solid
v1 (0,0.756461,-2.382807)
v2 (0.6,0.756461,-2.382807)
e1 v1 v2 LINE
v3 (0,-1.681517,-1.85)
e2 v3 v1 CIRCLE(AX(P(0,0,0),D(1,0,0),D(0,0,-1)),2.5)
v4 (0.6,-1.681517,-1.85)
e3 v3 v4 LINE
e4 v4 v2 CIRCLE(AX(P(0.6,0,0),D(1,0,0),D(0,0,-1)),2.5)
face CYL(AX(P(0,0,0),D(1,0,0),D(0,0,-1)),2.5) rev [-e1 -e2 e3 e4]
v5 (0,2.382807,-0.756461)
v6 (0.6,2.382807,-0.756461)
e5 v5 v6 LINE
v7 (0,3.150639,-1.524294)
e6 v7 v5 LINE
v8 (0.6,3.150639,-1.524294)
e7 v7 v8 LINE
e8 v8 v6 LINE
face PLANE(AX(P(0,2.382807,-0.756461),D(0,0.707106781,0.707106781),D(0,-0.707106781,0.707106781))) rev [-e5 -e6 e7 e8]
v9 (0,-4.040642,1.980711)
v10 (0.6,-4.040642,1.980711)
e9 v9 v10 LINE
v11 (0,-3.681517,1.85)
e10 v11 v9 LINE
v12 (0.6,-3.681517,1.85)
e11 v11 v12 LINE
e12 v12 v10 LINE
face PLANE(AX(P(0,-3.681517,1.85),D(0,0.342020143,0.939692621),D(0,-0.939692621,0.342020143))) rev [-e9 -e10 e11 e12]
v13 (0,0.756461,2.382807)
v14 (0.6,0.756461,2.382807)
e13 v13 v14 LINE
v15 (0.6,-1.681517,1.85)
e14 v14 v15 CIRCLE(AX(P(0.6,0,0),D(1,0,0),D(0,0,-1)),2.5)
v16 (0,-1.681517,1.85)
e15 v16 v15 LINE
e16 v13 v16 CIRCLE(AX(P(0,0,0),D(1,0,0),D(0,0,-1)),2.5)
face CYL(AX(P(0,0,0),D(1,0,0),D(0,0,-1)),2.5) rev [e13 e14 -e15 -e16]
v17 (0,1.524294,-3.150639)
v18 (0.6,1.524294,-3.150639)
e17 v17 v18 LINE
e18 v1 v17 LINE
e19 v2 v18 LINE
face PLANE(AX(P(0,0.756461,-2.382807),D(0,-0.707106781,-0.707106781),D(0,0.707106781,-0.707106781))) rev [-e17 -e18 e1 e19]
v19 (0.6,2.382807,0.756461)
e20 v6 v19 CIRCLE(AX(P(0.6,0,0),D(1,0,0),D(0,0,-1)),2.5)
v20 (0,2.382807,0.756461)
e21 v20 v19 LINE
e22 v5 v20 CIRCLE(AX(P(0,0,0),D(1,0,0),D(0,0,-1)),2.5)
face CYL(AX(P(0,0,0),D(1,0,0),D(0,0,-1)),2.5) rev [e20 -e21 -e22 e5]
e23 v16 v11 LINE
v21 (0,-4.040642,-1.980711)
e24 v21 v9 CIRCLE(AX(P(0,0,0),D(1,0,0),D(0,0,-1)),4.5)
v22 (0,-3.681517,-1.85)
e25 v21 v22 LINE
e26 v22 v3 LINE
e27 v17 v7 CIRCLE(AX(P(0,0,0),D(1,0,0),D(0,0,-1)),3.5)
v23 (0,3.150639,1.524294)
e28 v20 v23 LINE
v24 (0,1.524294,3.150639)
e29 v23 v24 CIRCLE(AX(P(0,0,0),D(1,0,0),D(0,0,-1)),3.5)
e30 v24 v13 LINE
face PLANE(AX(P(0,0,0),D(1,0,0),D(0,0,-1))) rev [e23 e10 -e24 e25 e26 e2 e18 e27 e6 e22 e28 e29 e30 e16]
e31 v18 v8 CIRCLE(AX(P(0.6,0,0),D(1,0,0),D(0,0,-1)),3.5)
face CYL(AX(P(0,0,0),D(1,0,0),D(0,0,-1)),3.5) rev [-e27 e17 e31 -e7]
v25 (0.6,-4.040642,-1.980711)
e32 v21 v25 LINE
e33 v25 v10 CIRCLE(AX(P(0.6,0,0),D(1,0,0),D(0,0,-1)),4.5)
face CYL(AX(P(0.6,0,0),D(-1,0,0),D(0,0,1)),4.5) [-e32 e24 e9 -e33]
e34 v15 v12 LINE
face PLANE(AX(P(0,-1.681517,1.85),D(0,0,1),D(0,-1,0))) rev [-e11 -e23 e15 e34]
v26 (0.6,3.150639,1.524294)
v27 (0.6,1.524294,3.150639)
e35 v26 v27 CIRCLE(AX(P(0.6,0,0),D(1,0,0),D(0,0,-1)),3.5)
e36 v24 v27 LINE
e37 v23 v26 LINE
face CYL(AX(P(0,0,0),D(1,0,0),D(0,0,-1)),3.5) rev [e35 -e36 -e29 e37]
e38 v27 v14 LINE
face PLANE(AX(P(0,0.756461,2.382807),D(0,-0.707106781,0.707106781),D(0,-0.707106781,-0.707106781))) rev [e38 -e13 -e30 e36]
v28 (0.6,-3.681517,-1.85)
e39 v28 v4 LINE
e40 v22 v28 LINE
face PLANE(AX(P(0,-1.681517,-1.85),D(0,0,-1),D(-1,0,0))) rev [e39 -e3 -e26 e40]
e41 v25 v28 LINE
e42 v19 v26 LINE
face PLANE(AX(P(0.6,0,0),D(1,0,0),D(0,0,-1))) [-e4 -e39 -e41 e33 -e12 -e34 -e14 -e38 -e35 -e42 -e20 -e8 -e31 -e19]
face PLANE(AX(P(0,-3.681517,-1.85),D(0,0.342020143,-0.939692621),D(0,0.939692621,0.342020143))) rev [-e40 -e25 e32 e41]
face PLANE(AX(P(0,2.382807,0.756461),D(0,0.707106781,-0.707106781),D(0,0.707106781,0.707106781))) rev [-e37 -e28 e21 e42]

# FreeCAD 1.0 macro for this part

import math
import FreeCAD as App
import Part
import Sketcher
from FreeCAD import Vector
Q = App.Units.Quantity

doc = App.newDocument("Part")
params = doc.addObject("Spreadsheet::Sheet", "Params")
for row, (alias, value) in enumerate([
    ("sketch1_diameter", "9 mm"),
    ("pad1_length", "0.6 mm"),
    ("sketch2_radius", "2.5 mm"),
    ("sketch2_radius2", "3.5 mm"),
    ("sketch2_radius3", "4.5 mm"),
    ("sketch2_width", "2 mm"),
], start=1):
    params.set(f"A{row}", alias)
    params.set(f"B{row}", "=" + value)
    params.setAlias(f"B{row}", alias)

body = doc.addObject("PartDesign::Body", "Body")

sketch1 = body.newObject("Sketcher::SketchObject", "Sketch")
sketch1.AttachmentSupport = (doc.getObject("YZ_Plane"), [""])
sketch1.MapMode = "FlatFace"
sketch1.addGeometry(Part.Circle(Vector(0, 0, 0), Vector(0, 0, 1), 4.5), False)
sketch1.addConstraint([
    Sketcher.Constraint("Coincident", 0, 3, -1, 1),
    Sketcher.Constraint("Diameter", 0, Q("9 mm")),
])
sketch1.setExpression("Constraints[1]", "Params.sketch1_diameter")
pad1 = body.newObject("PartDesign::Pad", "Pad")
pad1.Profile = sketch1
pad1.setExpression("Length", "Params.pad1_length")

sketch2 = body.newObject("Sketcher::SketchObject", "Sketch001")
sketch2.AttachmentSupport = (doc.getObject("YZ_Plane"), [""])
sketch2.MapMode = "FlatFace"
sketch2.AttachmentOffset = App.Placement(Vector(0, 0, 0.6), App.Rotation())
sketch2.addGeometry([
    Part.LineSegment(Vector(3.150639, -1.524294, 0), Vector(2.382807, -0.756461, 0)),
    Part.ArcOfCircle(Part.Circle(Vector(0, 0, 0), Vector(0, 0, 1), 2.5), math.radians(-17.612892), math.radians(17.612892)),
    Part.LineSegment(Vector(2.382807, 0.756461, 0), Vector(3.150639, 1.524294, 0)),
    Part.ArcOfCircle(Part.Circle(Vector(0, 0, 0), Vector(0, 0, 1), 3.5), math.radians(25.81791), math.radians(64.18209)),
    Part.LineSegment(Vector(1.524294, 3.150639, 0), Vector(0.756461, 2.382807, 0)),
    Part.ArcOfCircle(Part.Circle(Vector(0, 0, 0), Vector(0, 0, 1), 2.5), math.radians(72.387108), math.radians(132.268584)),
    Part.LineSegment(Vector(-1.681517, 1.85, 0), Vector(-3.681517, 1.85, 0)),
    Part.LineSegment(Vector(-3.681517, 1.85, 0), Vector(-4.040642, 1.980711, 0)),
    Part.ArcOfCircle(Part.Circle(Vector(0, 0, 0), Vector(0, 0, 1), 4.5), math.radians(153.886043), math.radians(206.113957)),
    Part.LineSegment(Vector(-4.040642, -1.980711, 0), Vector(-3.681517, -1.85, 0)),
    Part.LineSegment(Vector(-3.681517, -1.85, 0), Vector(-1.681517, -1.85, 0)),
    Part.ArcOfCircle(Part.Circle(Vector(0, 0, 0), Vector(0, 0, 1), 2.5), math.radians(-132.268584), math.radians(-72.387108)),
    Part.LineSegment(Vector(0.756461, -2.382807, 0), Vector(1.524294, -3.150639, 0)),
    Part.ArcOfCircle(Part.Circle(Vector(0, 0, 0), Vector(0, 0, 1), 3.5), math.radians(-64.18209), math.radians(-25.81791)),
], False)
sketch2.addConstraint([
    Sketcher.Constraint("Coincident", 0, 2, 1, 1),
    Sketcher.Constraint("Coincident", 1, 2, 2, 1),
    Sketcher.Constraint("Coincident", 2, 2, 3, 1),
    Sketcher.Constraint("Coincident", 3, 2, 4, 1),
    Sketcher.Constraint("Coincident", 4, 2, 5, 1),
    Sketcher.Constraint("Coincident", 5, 2, 6, 1),
    Sketcher.Constraint("Coincident", 6, 2, 7, 1),
    Sketcher.Constraint("Coincident", 7, 2, 8, 1),
    Sketcher.Constraint("Coincident", 8, 2, 9, 1),
    Sketcher.Constraint("Coincident", 9, 2, 10, 1),
    Sketcher.Constraint("Coincident", 10, 2, 11, 1),
    Sketcher.Constraint("Coincident", 11, 2, 12, 1),
    Sketcher.Constraint("Coincident", 12, 2, 13, 1),
    Sketcher.Constraint("Coincident", 13, 2, 0, 1),
    Sketcher.Constraint("Horizontal", 6),
    Sketcher.Constraint("Horizontal", 10),
    Sketcher.Constraint("Coincident", 1, 3, -1, 1),
    Sketcher.Constraint("Coincident", 3, 3, -1, 1),
    Sketcher.Constraint("Coincident", 5, 3, -1, 1),
    Sketcher.Constraint("Coincident", 8, 3, -1, 1),
    Sketcher.Constraint("Coincident", 11, 3, -1, 1),
    Sketcher.Constraint("Coincident", 13, 3, -1, 1),
    Sketcher.Constraint("Equal", 1, 5),
    Sketcher.Constraint("Equal", 5, 11),
    Sketcher.Constraint("Equal", 3, 13),
    Sketcher.Constraint("Symmetric", 6, 2, 9, 2, -1),
    Sketcher.Constraint("Perpendicular", 0, 2),
    Sketcher.Constraint("Parallel", 2, 4),
    Sketcher.Constraint("Perpendicular", 4, 12),
    Sketcher.Constraint("Vertical", 0, 2, 1, 2),
    Sketcher.Constraint("Vertical", 7, 2, 8, 2),
    Sketcher.Constraint("Vertical", 4, 2, 11, 2),
    Sketcher.Constraint("Vertical", 3, 2, 12, 2),
    Sketcher.Constraint("Equal", 2, 4),
    Sketcher.Constraint("Radius", 1, Q("2.5 mm")),
    Sketcher.Constraint("Radius", 3, Q("3.5 mm")),
    Sketcher.Constraint("Radius", 8, Q("4.5 mm")),
    Sketcher.Constraint("DistanceX", 6, 2, 6, 1, Q("2 mm")),
    Sketcher.Constraint("Angle", 7, Q("160 deg")),
    Sketcher.Constraint("DistanceY", 9, 2, 6, 2, Q("3.7 mm")),
    Sketcher.Constraint("Distance", 0, Q("1.08588 mm")),
])
sketch2.setExpression("Constraints[34]", "Params.sketch2_radius")
sketch2.setExpression("Constraints[35]", "Params.sketch2_radius2")
sketch2.setExpression("Constraints[36]", "Params.sketch2_radius3")
sketch2.setExpression("Constraints[37]", "Params.sketch2_width")
pocket1 = body.newObject("PartDesign::Pocket", "Pocket")
pocket1.Profile = sketch2
pocket1.Type = "ThroughAll"

doc.recompute()
